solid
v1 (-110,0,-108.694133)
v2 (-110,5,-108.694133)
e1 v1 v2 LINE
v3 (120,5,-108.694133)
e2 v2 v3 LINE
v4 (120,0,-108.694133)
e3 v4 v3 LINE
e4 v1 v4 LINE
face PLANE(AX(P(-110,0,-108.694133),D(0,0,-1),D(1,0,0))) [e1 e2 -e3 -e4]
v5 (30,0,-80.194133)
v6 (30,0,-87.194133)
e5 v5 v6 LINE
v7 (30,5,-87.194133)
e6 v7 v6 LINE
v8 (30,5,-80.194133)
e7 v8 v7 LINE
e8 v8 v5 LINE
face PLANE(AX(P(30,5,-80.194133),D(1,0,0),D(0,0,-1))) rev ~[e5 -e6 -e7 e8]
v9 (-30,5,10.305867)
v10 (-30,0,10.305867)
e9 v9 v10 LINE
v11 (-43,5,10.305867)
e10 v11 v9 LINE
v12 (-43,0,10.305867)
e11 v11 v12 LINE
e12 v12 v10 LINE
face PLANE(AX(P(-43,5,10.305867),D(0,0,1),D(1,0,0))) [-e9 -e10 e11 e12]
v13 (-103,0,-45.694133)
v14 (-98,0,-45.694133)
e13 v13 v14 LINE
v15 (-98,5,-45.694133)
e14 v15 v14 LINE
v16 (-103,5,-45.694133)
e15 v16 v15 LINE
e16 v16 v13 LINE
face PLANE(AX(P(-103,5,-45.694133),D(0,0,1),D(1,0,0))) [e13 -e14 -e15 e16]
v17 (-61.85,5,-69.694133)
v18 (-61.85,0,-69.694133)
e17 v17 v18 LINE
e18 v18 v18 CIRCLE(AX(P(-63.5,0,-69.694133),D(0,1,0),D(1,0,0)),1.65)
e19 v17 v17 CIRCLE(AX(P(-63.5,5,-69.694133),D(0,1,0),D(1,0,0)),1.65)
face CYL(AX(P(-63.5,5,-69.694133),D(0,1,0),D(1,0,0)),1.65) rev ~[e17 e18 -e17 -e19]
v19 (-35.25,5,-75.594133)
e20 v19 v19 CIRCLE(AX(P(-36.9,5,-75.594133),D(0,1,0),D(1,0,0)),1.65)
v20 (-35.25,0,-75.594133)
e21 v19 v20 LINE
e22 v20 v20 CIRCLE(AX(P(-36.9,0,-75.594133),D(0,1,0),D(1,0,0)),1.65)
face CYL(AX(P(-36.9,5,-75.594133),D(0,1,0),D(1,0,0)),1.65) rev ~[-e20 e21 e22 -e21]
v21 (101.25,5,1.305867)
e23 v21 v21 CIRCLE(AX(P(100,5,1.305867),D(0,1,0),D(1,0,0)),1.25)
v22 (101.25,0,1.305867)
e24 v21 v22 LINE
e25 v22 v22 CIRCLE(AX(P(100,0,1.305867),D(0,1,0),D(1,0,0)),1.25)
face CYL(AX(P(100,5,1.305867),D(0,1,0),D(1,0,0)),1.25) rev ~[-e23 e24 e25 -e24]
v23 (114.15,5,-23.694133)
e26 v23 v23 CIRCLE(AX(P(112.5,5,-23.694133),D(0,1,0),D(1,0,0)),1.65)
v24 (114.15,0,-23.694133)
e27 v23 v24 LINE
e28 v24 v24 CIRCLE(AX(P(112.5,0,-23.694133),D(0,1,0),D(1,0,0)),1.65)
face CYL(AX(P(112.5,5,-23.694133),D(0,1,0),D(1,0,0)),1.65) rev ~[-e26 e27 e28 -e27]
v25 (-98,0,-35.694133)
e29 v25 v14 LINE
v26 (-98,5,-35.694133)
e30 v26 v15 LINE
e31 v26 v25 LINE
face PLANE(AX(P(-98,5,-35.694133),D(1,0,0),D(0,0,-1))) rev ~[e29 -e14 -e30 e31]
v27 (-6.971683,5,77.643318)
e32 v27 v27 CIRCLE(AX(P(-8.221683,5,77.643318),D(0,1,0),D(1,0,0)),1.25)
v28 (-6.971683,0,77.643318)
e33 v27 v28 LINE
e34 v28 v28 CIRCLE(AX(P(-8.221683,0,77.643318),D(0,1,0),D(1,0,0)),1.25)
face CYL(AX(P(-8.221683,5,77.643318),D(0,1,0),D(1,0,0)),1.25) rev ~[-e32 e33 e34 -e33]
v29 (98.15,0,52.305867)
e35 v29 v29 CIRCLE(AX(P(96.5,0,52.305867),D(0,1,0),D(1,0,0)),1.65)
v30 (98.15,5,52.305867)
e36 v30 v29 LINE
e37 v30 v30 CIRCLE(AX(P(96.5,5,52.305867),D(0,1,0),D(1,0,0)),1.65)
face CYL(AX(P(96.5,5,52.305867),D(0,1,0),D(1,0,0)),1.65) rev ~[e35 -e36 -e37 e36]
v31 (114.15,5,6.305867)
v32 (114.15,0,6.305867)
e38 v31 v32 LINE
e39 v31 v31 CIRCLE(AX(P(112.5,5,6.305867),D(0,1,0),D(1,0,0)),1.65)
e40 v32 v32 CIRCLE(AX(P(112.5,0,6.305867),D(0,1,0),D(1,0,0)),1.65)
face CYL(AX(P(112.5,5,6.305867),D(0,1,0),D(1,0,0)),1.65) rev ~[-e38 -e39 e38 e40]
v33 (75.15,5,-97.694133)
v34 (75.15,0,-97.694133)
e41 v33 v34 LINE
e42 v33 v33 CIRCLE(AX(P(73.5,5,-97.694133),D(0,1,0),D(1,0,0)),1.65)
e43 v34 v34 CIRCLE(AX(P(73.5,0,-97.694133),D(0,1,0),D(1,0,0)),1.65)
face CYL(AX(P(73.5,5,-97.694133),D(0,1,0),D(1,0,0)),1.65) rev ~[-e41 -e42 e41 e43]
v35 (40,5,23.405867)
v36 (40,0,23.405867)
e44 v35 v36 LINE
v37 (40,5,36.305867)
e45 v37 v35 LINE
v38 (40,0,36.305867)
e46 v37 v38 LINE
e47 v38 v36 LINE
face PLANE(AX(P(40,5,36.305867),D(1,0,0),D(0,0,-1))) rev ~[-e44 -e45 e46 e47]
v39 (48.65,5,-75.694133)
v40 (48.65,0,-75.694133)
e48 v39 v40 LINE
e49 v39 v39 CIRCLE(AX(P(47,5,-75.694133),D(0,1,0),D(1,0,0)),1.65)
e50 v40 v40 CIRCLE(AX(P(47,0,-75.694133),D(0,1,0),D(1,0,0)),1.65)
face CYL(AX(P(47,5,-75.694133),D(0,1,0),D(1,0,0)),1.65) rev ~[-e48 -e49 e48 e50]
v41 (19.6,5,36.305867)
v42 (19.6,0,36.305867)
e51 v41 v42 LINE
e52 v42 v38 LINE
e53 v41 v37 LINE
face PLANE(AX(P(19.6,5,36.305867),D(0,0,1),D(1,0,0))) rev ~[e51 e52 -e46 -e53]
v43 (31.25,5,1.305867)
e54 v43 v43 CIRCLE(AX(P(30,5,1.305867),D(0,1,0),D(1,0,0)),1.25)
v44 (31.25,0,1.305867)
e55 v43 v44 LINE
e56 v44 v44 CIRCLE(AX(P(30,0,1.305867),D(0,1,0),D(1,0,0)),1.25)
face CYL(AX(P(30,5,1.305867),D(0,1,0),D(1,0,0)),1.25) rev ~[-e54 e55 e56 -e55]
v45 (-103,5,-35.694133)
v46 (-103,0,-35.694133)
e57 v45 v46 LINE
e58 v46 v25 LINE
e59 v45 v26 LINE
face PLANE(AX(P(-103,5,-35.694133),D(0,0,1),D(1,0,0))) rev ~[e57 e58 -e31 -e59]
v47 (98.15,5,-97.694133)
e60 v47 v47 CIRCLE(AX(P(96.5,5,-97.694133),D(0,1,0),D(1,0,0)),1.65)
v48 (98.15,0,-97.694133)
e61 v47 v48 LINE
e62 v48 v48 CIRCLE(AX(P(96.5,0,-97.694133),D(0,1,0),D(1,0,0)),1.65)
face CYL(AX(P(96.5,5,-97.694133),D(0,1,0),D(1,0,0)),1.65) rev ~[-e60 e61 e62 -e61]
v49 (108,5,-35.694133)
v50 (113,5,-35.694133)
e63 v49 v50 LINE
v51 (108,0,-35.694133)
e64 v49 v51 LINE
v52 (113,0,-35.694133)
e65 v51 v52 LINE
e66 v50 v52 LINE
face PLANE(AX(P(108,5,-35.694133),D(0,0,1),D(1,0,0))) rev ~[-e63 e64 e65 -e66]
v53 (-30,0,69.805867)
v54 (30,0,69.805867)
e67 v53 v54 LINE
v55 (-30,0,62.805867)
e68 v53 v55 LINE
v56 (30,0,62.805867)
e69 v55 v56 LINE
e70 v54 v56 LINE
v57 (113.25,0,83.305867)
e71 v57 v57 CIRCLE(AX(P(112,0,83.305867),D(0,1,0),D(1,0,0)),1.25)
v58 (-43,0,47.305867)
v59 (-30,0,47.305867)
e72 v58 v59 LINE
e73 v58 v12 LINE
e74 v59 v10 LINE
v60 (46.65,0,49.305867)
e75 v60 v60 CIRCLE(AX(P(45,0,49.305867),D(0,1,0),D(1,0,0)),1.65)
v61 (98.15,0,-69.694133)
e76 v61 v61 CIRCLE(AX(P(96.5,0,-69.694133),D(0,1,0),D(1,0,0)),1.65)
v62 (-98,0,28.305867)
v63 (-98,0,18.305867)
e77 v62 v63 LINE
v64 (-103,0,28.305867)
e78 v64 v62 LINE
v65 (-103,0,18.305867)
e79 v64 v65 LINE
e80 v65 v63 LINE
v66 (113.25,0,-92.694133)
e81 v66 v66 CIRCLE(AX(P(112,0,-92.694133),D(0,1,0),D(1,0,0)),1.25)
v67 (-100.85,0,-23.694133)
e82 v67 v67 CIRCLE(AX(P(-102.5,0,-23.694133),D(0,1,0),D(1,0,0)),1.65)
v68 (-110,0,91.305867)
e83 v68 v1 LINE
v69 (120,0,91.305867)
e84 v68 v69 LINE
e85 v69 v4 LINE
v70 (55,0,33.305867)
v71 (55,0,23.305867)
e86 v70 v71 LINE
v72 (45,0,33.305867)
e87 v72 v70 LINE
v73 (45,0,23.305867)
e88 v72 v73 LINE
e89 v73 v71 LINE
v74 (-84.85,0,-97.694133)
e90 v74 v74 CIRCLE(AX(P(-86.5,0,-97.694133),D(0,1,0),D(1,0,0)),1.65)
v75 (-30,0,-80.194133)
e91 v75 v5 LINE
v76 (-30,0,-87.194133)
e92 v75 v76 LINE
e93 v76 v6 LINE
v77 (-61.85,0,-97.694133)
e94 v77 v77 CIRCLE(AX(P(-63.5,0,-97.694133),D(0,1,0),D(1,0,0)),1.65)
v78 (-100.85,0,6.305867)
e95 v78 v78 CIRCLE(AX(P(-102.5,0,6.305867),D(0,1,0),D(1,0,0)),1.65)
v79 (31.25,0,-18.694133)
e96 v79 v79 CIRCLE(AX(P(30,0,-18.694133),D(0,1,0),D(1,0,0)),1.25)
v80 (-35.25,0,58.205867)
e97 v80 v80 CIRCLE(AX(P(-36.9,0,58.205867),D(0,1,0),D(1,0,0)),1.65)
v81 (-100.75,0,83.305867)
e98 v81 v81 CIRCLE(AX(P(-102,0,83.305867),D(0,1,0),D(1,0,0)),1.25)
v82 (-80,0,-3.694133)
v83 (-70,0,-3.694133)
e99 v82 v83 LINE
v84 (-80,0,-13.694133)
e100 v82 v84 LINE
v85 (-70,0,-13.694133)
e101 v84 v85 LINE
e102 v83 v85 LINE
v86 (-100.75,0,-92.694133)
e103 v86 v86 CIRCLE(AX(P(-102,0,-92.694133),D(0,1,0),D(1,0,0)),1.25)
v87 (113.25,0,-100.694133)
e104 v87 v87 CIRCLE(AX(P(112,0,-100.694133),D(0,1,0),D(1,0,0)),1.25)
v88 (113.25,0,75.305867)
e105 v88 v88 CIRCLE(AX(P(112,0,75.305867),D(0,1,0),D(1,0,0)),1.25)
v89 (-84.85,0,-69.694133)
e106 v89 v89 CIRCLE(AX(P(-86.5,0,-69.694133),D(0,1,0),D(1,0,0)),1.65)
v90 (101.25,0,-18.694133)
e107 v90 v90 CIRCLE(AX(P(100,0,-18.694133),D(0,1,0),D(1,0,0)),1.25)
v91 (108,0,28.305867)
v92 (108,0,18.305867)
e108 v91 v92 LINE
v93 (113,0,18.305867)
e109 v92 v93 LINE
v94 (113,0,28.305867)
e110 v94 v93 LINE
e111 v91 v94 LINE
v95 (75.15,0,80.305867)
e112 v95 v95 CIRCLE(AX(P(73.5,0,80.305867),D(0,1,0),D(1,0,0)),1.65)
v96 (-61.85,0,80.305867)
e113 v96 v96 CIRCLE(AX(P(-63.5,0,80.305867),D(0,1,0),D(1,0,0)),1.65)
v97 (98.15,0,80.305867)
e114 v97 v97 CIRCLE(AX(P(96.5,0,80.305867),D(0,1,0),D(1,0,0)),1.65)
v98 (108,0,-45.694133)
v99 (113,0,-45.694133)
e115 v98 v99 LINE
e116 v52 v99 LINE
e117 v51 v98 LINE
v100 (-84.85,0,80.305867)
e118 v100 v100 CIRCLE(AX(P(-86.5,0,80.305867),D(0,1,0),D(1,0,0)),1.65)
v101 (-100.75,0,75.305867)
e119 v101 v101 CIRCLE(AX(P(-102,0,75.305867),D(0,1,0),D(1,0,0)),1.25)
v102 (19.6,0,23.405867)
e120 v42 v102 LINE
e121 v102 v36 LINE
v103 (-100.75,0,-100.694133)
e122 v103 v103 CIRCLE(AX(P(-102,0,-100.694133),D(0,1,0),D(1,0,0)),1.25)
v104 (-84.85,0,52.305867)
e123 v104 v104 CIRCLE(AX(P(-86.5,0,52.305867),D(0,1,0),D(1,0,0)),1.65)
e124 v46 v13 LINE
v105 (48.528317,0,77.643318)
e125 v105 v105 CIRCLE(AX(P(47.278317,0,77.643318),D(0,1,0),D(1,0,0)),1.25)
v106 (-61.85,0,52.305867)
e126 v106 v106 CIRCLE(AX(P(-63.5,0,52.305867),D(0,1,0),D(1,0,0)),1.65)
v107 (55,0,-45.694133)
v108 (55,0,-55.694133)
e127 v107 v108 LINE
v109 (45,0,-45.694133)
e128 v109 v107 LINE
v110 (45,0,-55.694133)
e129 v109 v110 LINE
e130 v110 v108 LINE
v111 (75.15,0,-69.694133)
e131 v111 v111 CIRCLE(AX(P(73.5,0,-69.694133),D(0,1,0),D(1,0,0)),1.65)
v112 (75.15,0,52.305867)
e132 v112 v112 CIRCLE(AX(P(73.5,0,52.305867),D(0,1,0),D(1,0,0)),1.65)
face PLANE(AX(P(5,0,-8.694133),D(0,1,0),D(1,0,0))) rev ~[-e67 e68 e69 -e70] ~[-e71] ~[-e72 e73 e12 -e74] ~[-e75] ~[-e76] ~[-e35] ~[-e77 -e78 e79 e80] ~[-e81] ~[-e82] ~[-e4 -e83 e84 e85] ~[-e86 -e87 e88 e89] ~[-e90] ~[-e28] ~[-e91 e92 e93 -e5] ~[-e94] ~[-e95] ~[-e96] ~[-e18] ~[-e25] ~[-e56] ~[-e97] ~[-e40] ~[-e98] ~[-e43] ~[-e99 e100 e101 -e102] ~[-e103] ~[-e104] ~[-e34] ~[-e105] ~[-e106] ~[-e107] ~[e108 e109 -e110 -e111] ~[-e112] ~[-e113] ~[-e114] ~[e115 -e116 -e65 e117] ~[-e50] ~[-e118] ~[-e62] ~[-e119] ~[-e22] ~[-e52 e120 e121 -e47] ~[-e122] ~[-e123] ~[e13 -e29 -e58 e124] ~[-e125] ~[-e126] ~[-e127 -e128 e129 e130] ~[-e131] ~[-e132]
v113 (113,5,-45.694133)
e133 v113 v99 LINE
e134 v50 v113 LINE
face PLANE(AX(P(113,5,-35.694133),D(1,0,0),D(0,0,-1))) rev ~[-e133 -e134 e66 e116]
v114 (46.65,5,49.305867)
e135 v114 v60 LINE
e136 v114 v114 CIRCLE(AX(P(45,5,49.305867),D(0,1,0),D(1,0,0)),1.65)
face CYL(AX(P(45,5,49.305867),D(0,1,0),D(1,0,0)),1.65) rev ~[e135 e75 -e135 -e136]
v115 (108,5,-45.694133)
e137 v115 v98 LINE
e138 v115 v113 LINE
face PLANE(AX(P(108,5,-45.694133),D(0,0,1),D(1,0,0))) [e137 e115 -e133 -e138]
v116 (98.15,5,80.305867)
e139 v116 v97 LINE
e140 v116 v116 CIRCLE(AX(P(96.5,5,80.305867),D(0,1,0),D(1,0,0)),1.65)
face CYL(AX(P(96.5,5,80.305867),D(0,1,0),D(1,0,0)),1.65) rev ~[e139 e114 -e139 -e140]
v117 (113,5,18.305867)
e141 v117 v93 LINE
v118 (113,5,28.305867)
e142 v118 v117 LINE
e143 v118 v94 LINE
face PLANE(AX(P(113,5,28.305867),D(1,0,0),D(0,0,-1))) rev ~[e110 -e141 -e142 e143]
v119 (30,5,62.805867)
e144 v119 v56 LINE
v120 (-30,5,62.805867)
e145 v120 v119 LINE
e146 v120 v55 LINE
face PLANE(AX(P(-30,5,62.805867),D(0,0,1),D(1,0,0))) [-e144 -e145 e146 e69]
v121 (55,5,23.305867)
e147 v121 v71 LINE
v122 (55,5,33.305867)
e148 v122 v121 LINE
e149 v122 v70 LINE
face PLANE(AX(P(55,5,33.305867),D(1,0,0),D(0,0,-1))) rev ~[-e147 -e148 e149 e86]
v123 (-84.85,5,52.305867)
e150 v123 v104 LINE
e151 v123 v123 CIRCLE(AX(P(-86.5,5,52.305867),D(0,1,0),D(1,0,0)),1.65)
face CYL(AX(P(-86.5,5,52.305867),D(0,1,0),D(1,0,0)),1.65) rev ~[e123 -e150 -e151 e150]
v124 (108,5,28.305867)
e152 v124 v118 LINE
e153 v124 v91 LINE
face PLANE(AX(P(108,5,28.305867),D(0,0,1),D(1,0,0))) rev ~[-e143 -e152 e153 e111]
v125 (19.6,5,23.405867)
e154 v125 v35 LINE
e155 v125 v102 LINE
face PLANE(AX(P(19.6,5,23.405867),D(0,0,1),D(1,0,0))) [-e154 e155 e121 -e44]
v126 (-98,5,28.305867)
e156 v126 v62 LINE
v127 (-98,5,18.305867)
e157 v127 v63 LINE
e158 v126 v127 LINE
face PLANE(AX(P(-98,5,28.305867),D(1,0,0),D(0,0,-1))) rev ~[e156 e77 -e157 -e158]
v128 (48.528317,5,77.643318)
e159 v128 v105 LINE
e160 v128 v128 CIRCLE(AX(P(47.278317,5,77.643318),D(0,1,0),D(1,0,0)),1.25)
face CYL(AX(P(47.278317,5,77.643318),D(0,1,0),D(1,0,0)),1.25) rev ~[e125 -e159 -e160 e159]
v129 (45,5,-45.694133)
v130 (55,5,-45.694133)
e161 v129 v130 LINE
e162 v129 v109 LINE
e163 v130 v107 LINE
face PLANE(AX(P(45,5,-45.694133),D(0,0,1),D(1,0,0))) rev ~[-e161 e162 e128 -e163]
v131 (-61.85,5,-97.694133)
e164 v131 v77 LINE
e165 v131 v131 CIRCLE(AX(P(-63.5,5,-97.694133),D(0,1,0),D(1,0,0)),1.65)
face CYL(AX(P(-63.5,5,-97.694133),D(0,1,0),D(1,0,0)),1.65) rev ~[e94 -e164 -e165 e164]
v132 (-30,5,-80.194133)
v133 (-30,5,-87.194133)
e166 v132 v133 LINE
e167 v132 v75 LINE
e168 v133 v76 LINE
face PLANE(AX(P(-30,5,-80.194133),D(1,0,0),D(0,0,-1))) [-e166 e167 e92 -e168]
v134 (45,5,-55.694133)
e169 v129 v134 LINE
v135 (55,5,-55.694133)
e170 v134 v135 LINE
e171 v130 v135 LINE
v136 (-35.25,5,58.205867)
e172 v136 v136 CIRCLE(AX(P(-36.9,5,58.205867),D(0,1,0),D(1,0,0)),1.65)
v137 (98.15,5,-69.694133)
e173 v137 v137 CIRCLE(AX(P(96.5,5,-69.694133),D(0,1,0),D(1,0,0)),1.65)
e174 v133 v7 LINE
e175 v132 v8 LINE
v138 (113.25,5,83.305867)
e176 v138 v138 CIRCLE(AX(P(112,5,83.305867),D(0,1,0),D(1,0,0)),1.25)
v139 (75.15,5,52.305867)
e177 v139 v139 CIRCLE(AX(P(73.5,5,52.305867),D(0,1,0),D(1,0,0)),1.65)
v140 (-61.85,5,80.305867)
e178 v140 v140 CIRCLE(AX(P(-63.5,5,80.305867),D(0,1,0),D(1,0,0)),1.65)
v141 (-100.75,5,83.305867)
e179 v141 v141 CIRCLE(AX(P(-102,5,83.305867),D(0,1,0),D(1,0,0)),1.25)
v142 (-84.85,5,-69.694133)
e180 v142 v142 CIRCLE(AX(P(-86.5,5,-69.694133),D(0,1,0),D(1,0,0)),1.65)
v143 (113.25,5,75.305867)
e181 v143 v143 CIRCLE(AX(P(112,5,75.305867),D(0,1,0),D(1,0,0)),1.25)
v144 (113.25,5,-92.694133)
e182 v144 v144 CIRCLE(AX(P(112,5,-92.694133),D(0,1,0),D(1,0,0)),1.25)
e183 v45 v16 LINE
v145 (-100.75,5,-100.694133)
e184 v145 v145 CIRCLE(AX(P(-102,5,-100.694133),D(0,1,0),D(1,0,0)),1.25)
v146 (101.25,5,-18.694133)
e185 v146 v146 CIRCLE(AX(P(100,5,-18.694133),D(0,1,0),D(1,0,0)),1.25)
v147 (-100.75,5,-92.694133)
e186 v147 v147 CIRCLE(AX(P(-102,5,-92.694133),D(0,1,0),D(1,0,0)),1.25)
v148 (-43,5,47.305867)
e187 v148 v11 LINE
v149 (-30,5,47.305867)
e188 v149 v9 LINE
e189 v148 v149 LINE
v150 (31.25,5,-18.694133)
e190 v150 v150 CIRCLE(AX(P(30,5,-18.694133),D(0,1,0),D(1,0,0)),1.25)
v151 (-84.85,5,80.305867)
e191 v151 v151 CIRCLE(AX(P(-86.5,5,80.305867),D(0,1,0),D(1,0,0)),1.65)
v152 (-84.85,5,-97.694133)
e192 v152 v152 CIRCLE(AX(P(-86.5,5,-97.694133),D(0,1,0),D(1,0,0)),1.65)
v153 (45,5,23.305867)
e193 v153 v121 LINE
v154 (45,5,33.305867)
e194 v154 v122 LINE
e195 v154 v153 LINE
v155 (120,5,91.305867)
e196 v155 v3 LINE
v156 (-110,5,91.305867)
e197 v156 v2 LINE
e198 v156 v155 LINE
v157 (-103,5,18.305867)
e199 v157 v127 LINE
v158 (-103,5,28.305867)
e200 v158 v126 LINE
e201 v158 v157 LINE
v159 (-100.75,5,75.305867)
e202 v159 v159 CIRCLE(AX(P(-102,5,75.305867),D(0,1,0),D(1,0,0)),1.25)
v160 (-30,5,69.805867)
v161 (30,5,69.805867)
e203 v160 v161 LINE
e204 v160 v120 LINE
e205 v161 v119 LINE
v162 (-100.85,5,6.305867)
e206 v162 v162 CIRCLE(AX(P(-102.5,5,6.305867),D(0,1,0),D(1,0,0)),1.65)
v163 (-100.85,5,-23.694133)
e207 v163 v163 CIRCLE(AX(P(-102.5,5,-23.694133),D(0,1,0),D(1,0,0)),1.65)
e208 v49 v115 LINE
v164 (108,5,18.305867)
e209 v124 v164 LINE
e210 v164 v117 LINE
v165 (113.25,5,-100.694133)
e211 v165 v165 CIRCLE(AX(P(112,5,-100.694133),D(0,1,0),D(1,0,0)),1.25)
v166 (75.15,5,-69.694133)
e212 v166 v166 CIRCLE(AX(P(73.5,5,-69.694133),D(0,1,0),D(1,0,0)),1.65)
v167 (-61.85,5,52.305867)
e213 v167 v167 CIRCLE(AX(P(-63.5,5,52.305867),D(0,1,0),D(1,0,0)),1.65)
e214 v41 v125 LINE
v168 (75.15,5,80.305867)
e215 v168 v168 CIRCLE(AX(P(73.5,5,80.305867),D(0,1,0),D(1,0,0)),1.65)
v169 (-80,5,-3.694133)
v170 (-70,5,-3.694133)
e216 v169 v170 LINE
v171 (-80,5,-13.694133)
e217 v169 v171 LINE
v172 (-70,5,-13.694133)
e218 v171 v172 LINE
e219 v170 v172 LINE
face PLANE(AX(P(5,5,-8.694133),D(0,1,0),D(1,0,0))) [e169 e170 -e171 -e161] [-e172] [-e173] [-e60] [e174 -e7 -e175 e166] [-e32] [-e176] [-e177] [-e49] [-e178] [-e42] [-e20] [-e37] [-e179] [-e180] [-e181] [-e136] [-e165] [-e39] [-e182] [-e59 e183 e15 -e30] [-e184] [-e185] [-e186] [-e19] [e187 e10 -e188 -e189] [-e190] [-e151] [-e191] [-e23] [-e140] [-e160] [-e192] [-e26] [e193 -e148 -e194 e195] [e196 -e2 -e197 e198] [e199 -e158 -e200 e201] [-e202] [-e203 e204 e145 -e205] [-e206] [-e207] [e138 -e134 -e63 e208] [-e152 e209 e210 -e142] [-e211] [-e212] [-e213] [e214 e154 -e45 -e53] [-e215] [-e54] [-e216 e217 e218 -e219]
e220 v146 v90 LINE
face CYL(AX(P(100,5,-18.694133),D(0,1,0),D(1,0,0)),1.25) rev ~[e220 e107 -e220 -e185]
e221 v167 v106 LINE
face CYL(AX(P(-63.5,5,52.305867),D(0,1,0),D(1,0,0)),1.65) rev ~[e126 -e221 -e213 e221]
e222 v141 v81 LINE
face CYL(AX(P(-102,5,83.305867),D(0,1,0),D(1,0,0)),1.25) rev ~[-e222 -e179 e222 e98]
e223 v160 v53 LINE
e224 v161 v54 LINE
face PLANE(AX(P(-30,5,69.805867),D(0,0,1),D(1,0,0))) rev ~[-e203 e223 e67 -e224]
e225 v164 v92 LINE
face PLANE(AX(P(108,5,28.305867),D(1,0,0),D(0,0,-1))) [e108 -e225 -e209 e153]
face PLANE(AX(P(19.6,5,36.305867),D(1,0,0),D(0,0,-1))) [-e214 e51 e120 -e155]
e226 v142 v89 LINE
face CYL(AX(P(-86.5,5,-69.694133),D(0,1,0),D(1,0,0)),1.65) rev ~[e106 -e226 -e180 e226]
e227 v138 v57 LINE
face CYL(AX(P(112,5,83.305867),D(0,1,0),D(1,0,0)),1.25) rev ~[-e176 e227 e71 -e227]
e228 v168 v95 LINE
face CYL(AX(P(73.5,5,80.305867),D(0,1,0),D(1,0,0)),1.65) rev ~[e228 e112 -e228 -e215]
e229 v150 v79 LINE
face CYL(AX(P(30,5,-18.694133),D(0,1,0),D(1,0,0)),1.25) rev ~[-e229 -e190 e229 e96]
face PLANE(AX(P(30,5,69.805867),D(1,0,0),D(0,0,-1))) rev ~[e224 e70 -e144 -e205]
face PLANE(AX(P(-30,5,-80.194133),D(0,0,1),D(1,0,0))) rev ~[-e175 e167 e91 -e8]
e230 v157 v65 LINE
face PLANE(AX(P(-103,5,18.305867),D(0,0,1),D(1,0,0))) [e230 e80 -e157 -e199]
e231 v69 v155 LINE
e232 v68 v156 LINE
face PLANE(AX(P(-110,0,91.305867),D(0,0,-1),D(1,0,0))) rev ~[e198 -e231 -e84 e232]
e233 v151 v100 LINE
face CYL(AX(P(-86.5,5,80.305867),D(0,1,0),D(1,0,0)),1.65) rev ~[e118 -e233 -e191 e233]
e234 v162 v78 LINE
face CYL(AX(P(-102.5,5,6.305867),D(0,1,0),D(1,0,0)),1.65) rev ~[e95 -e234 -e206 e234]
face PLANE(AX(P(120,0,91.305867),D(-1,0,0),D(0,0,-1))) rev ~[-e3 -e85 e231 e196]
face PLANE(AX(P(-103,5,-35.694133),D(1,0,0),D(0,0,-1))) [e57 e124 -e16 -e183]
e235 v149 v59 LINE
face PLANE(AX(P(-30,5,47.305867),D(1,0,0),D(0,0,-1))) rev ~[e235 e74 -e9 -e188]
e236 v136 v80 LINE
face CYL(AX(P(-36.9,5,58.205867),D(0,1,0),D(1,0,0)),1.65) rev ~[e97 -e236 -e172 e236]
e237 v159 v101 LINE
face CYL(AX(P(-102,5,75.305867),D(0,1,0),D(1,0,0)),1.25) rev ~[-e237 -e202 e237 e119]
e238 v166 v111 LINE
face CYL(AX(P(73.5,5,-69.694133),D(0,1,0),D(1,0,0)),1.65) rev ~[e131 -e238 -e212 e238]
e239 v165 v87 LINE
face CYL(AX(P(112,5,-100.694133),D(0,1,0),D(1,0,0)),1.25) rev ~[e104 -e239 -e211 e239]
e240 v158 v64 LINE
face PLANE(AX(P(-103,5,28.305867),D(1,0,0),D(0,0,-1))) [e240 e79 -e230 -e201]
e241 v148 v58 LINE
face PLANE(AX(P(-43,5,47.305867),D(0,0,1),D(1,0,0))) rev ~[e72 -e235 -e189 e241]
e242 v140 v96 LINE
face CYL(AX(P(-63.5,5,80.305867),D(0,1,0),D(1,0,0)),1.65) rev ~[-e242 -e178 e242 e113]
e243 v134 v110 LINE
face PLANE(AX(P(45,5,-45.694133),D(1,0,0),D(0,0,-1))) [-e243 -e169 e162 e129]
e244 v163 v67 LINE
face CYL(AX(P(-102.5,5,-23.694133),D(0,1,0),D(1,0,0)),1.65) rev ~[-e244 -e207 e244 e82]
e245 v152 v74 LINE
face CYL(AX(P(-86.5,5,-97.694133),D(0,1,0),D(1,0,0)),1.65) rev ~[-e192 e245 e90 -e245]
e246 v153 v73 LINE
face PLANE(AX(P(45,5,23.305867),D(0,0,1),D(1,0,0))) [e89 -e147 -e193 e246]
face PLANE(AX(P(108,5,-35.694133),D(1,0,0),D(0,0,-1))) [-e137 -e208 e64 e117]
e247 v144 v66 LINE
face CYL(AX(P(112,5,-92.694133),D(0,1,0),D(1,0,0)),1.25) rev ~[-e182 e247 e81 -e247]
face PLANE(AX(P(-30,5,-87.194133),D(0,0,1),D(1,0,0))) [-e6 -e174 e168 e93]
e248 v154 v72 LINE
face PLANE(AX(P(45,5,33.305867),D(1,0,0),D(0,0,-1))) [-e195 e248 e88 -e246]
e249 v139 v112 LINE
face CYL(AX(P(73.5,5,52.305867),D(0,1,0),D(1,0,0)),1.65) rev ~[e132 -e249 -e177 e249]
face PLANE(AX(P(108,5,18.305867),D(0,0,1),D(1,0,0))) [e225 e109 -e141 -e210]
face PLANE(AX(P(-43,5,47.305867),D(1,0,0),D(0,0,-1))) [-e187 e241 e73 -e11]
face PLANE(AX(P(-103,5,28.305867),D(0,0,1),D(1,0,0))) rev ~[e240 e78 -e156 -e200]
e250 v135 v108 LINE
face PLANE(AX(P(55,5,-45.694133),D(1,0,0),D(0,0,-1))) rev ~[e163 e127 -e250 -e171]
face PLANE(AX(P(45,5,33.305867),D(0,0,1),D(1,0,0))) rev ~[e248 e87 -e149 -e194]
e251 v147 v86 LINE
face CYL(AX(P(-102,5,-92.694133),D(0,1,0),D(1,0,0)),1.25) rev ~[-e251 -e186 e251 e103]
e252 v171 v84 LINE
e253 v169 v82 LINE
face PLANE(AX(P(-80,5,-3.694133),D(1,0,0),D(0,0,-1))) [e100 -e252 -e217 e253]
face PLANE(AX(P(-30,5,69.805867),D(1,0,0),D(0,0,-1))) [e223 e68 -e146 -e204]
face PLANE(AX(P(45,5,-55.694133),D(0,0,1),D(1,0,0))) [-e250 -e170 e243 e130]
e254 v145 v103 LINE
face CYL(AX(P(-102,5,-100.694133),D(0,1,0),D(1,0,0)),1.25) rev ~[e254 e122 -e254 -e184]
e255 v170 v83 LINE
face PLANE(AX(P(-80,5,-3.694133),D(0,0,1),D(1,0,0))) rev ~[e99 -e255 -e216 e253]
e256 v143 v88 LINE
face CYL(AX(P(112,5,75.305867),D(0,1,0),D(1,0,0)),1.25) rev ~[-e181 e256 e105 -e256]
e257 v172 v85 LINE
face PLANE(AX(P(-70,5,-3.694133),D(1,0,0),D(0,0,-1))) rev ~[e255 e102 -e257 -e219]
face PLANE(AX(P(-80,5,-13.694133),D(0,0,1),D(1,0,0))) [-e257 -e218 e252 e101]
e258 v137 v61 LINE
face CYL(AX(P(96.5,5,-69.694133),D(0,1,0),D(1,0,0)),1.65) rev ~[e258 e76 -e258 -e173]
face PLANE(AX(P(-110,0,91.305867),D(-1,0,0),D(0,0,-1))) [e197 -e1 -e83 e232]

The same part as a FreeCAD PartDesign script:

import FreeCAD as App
import Part
import Sketcher


def add_polygon(sketch, points):
    """Adds a closed chain of lines whose ends are joined by coincident constraints."""
    first, n = sketch.GeometryCount, len(points)
    for a, b in zip(points, points[1:] + points[:1]):
        sketch.addGeometry(Part.LineSegment(App.Vector(*a, 0), App.Vector(*b, 0)), False)
    for i in range(n):
        sketch.addConstraint(Sketcher.Constraint("Coincident", first + i, 2, first + (i + 1) % n, 1))

doc = App.newDocument("Part")
body = doc.addObject("PartDesign::Body", "Body")

# Sketch on XZ plane
sketch1 = body.newObject("Sketcher::SketchObject", "Sketch")
sketch1.AttachmentSupport = (doc.getObject("XZ_Plane"), [""])
sketch1.MapMode = "FlatFace"
add_polygon(sketch1, [(-110, -108.694133), (-110, 91.305867), (120, 91.305867), (120, -108.694133)])  # lines 0-3
sketch1.addConstraint(Sketcher.Constraint("Vertical", 0))
sketch1.addConstraint(Sketcher.Constraint("Horizontal", 1))
sketch1.addConstraint(Sketcher.Constraint("Vertical", 2))
sketch1.addConstraint(Sketcher.Constraint("Horizontal", 3))
sketch1.addConstraint(Sketcher.Constraint("DistanceX", 1, 1, 1, 2, 230.0))
sketch1.addConstraint(Sketcher.Constraint("DistanceY", 0, 1, 0, 2, 200.0))
sketch1.addConstraint(Sketcher.Constraint("DistanceX", 0, 2, -1, 1, 110.0))
sketch1.addConstraint(Sketcher.Constraint("DistanceY", -1, 1, 0, 2, 91.305867))
pad1 = body.newObject("PartDesign::Pad", "Pad")
pad1.Profile = sketch1
pad1.Length = 5
pad1.Reversed = True

# Sketch on XZ plane
sketch2 = body.newObject("Sketcher::SketchObject", "Sketch001")
sketch2.AttachmentSupport = (doc.getObject("XZ_Plane"), [""])
sketch2.MapMode = "FlatFace"
sketch2.AttachmentOffset = App.Placement(App.Vector(0, 0, -5), App.Rotation())
sketch2.addGeometry(Part.Circle(App.Vector(-86.5, -97.694133, 0), App.Vector(0, 0, 1), 1.65), False)  # 0
sketch2.addGeometry(Part.Circle(App.Vector(-63.5, -97.694133, 0), App.Vector(0, 0, 1), 1.65), False)  # 1
sketch2.addGeometry(Part.Circle(App.Vector(-86.5, -69.694133, 0), App.Vector(0, 0, 1), 1.65), False)  # 2
sketch2.addGeometry(Part.Circle(App.Vector(-63.5, -69.694133, 0), App.Vector(0, 0, 1), 1.65), False)  # 3
sketch2.addGeometry(Part.Circle(App.Vector(-86.5, 52.305867, 0), App.Vector(0, 0, 1), 1.65), False)  # 4
sketch2.addGeometry(Part.Circle(App.Vector(-63.5, 52.305867, 0), App.Vector(0, 0, 1), 1.65), False)  # 5
sketch2.addGeometry(Part.Circle(App.Vector(-86.5, 80.305867, 0), App.Vector(0, 0, 1), 1.65), False)  # 6
sketch2.addGeometry(Part.Circle(App.Vector(-63.5, 80.305867, 0), App.Vector(0, 0, 1), 1.65), False)  # 7
sketch2.addGeometry(Part.Circle(App.Vector(73.5, 52.305867, 0), App.Vector(0, 0, 1), 1.65), False)  # 8
sketch2.addGeometry(Part.Circle(App.Vector(96.5, 52.305867, 0), App.Vector(0, 0, 1), 1.65), False)  # 9
sketch2.addGeometry(Part.Circle(App.Vector(73.5, 80.305867, 0), App.Vector(0, 0, 1), 1.65), False)  # 10
sketch2.addGeometry(Part.Circle(App.Vector(96.5, 80.305867, 0), App.Vector(0, 0, 1), 1.65), False)  # 11
sketch2.addGeometry(Part.Circle(App.Vector(73.5, -97.694133, 0), App.Vector(0, 0, 1), 1.65), False)  # 12
sketch2.addGeometry(Part.Circle(App.Vector(96.5, -97.694133, 0), App.Vector(0, 0, 1), 1.65), False)  # 13
sketch2.addGeometry(Part.Circle(App.Vector(73.5, -69.694133, 0), App.Vector(0, 0, 1), 1.65), False)  # 14
sketch2.addGeometry(Part.Circle(App.Vector(96.5, -69.694133, 0), App.Vector(0, 0, 1), 1.65), False)  # 15
sketch2.addGeometry(Part.Circle(App.Vector(-36.9, 58.205867, 0), App.Vector(0, 0, 1), 1.65), False)  # 16
sketch2.addGeometry(Part.Circle(App.Vector(-36.9, -75.594133, 0), App.Vector(0, 0, 1), 1.65), False)  # 17
sketch2.addGeometry(Part.Circle(App.Vector(47, -75.694133, 0), App.Vector(0, 0, 1), 1.65), False)  # 18
sketch2.addGeometry(Part.Circle(App.Vector(45, 49.305867, 0), App.Vector(0, 0, 1), 1.65), False)  # 19
add_polygon(sketch2, [(-30, -87.194133), (-30, -80.194133), (30, -80.194133), (30, -87.194133)])  # lines 20-23
add_polygon(sketch2, [(-30, 62.805867), (-30, 69.805867), (30, 69.805867), (30, 62.805867)])  # lines 24-27
add_polygon(sketch2, [(-43, 10.305867), (-43, 47.305867), (-30, 47.305867), (-30, 10.305867)])  # lines 28-31
sketch2.addConstraint(Sketcher.Constraint("Vertical", 20))
sketch2.addConstraint(Sketcher.Constraint("Horizontal", 21))
sketch2.addConstraint(Sketcher.Constraint("Vertical", 22))
sketch2.addConstraint(Sketcher.Constraint("Horizontal", 23))
sketch2.addConstraint(Sketcher.Constraint("Vertical", 24))
sketch2.addConstraint(Sketcher.Constraint("Horizontal", 25))
sketch2.addConstraint(Sketcher.Constraint("Vertical", 26))
sketch2.addConstraint(Sketcher.Constraint("Horizontal", 27))
sketch2.addConstraint(Sketcher.Constraint("Vertical", 28))
sketch2.addConstraint(Sketcher.Constraint("Horizontal", 29))
sketch2.addConstraint(Sketcher.Constraint("Vertical", 30))
sketch2.addConstraint(Sketcher.Constraint("Horizontal", 31))
sketch2.addConstraint(Sketcher.Constraint("Equal", 0, 1))
sketch2.addConstraint(Sketcher.Constraint("Equal", 1, 2))
sketch2.addConstraint(Sketcher.Constraint("Equal", 2, 3))
sketch2.addConstraint(Sketcher.Constraint("Equal", 3, 4))
sketch2.addConstraint(Sketcher.Constraint("Equal", 4, 5))
sketch2.addConstraint(Sketcher.Constraint("Equal", 5, 6))
sketch2.addConstraint(Sketcher.Constraint("Equal", 6, 7))
sketch2.addConstraint(Sketcher.Constraint("Equal", 7, 8))
sketch2.addConstraint(Sketcher.Constraint("Equal", 8, 9))
sketch2.addConstraint(Sketcher.Constraint("Equal", 9, 10))
sketch2.addConstraint(Sketcher.Constraint("Equal", 10, 11))
sketch2.addConstraint(Sketcher.Constraint("Equal", 11, 12))
sketch2.addConstraint(Sketcher.Constraint("Equal", 12, 13))
sketch2.addConstraint(Sketcher.Constraint("Equal", 13, 14))
sketch2.addConstraint(Sketcher.Constraint("Equal", 14, 15))
sketch2.addConstraint(Sketcher.Constraint("Equal", 15, 16))
sketch2.addConstraint(Sketcher.Constraint("Equal", 16, 17))
sketch2.addConstraint(Sketcher.Constraint("Equal", 17, 18))
sketch2.addConstraint(Sketcher.Constraint("Equal", 18, 19))
sketch2.addConstraint(Sketcher.Constraint("Horizontal", 0, 3, 1, 3))
sketch2.addConstraint(Sketcher.Constraint("Horizontal", 2, 3, 3, 3))
sketch2.addConstraint(Sketcher.Constraint("Horizontal", 4, 3, 5, 3))
sketch2.addConstraint(Sketcher.Constraint("Horizontal", 6, 3, 7, 3))
sketch2.addConstraint(Sketcher.Constraint("Horizontal", 5, 3, 8, 3))
sketch2.addConstraint(Sketcher.Constraint("Horizontal", 8, 3, 9, 3))
sketch2.addConstraint(Sketcher.Constraint("Horizontal", 7, 3, 10, 3))
sketch2.addConstraint(Sketcher.Constraint("Horizontal", 10, 3, 11, 3))
sketch2.addConstraint(Sketcher.Constraint("Horizontal", 1, 3, 12, 3))
sketch2.addConstraint(Sketcher.Constraint("Horizontal", 12, 3, 13, 3))
sketch2.addConstraint(Sketcher.Constraint("Horizontal", 3, 3, 14, 3))
sketch2.addConstraint(Sketcher.Constraint("Horizontal", 14, 3, 15, 3))
sketch2.addConstraint(Sketcher.Constraint("Vertical", 0, 3, 2, 3))
sketch2.addConstraint(Sketcher.Constraint("Vertical", 1, 3, 3, 3))
sketch2.addConstraint(Sketcher.Constraint("Vertical", 2, 3, 4, 3))
sketch2.addConstraint(Sketcher.Constraint("Vertical", 3, 3, 5, 3))
sketch2.addConstraint(Sketcher.Constraint("Vertical", 4, 3, 6, 3))
sketch2.addConstraint(Sketcher.Constraint("Vertical", 5, 3, 7, 3))
sketch2.addConstraint(Sketcher.Constraint("Vertical", 8, 3, 10, 3))
sketch2.addConstraint(Sketcher.Constraint("Vertical", 9, 3, 11, 3))
sketch2.addConstraint(Sketcher.Constraint("Vertical", 10, 3, 12, 3))
sketch2.addConstraint(Sketcher.Constraint("Vertical", 11, 3, 13, 3))
sketch2.addConstraint(Sketcher.Constraint("Vertical", 12, 3, 14, 3))
sketch2.addConstraint(Sketcher.Constraint("Vertical", 13, 3, 15, 3))
sketch2.addConstraint(Sketcher.Constraint("Vertical", 16, 3, 17, 3))
sketch2.addConstraint(Sketcher.Constraint("Vertical", 23, 2, 24, 2))
sketch2.addConstraint(Sketcher.Constraint("Vertical", 22, 2, 25, 2))
sketch2.addConstraint(Sketcher.Constraint("Vertical", 27, 2, 29, 2))
sketch2.addConstraint(Sketcher.Constraint("Equal", 22, 24))
sketch2.addConstraint(Sketcher.Constraint("Diameter", 0, 3.3))
sketch2.addConstraint(Sketcher.Constraint("DistanceX", 21, 1, 21, 2, 60.0))
sketch2.addConstraint(Sketcher.Constraint("DistanceX", 29, 1, 29, 2, 13.0))
sketch2.addConstraint(Sketcher.Constraint("DistanceY", 20, 1, 20, 2, 7.0))
sketch2.addConstraint(Sketcher.Constraint("DistanceY", 28, 1, 28, 2, 37.0))
sketch2.addConstraint(Sketcher.Constraint("DistanceX", -1, 1, 18, 3, 47.0))
sketch2.addConstraint(Sketcher.Constraint("DistanceX", -1, 1, 19, 3, 45.0))
sketch2.addConstraint(Sketcher.Constraint("DistanceX", 20, 2, -1, 1, 30.0))
sketch2.addConstraint(Sketcher.Constraint("DistanceX", 0, 3, 1, 3, 23.0))
sketch2.addConstraint(Sketcher.Constraint("DistanceY", 0, 3, 2, 3, 28.0))
sketch2.addConstraint(Sketcher.Constraint("DistanceY", 2, 3, 4, 3, 122.0))
sketch2.addConstraint(Sketcher.Constraint("DistanceY", 4, 3, 6, 3, 28.0))
sketch2.addConstraint(Sketcher.Constraint("DistanceX", 5, 3, 8, 3, 137.0))
sketch2.addConstraint(Sketcher.Constraint("DistanceX", 8, 3, 9, 3, 23.0))
sketch2.addConstraint(Sketcher.Constraint("DistanceY", 18, 3, 14, 3, 6.0))
sketch2.addConstraint(Sketcher.Constraint("DistanceY", 19, 3, 8, 3, 3.0))
sketch2.addConstraint(Sketcher.Constraint("DistanceY", 28, 2, 5, 3, 5.0))
sketch2.addConstraint(Sketcher.Constraint("DistanceX", 0, 3, -1, 1, 86.5))
sketch2.addConstraint(Sketcher.Constraint("DistanceX", 16, 3, -1, 1, 36.9))
sketch2.addConstraint(Sketcher.Constraint("DistanceY", 5, 3, 16, 3, 5.9))
sketch2.addConstraint(Sketcher.Constraint("DistanceY", 17, 3, 3, 3, 5.9))
sketch2.addConstraint(Sketcher.Constraint("DistanceY", 20, 2, 17, 3, 4.6))
sketch2.addConstraint(Sketcher.Constraint("DistanceY", 16, 3, 24, 2, 11.6))
sketch2.addConstraint(Sketcher.Constraint("DistanceY", 0, 3, -1, 1, 97.694133))
pocket1 = body.newObject("PartDesign::Pocket", "Pocket")
pocket1.Profile = sketch2
pocket1.Length = 5
pocket1.Reversed = True

# Sketch on XZ plane
sketch3 = body.newObject("Sketcher::SketchObject", "Sketch002")
sketch3.AttachmentSupport = (doc.getObject("XZ_Plane"), [""])
sketch3.MapMode = "FlatFace"
sketch3.AttachmentOffset = App.Placement(App.Vector(0, 0, -5), App.Rotation())
sketch3.addGeometry(Part.Circle(App.Vector(-102, -100.694133, 0), App.Vector(0, 0, 1), 1.25), False)
sketch3.addGeometry(Part.Circle(App.Vector(-102, 83.305867, 0), App.Vector(0, 0, 1), 1.25), False)
sketch3.addGeometry(Part.Circle(App.Vector(112, 83.305867, 0), App.Vector(0, 0, 1), 1.25), False)
sketch3.addGeometry(Part.Circle(App.Vector(112, -100.694133, 0), App.Vector(0, 0, 1), 1.25), False)
sketch3.addGeometry(Part.Circle(App.Vector(-102, 75.305867, 0), App.Vector(0, 0, 1), 1.25), False)
sketch3.addGeometry(Part.Circle(App.Vector(-102, -92.694133, 0), App.Vector(0, 0, 1), 1.25), False)
sketch3.addGeometry(Part.Circle(App.Vector(112, -92.694133, 0), App.Vector(0, 0, 1), 1.25), False)
sketch3.addGeometry(Part.Circle(App.Vector(112, 75.305867, 0), App.Vector(0, 0, 1), 1.25), False)
sketch3.addConstraint(Sketcher.Constraint("Equal", 0, 1))
sketch3.addConstraint(Sketcher.Constraint("Equal", 1, 2))
sketch3.addConstraint(Sketcher.Constraint("Equal", 2, 3))
sketch3.addConstraint(Sketcher.Constraint("Equal", 3, 4))
sketch3.addConstraint(Sketcher.Constraint("Equal", 4, 5))
sketch3.addConstraint(Sketcher.Constraint("Equal", 5, 6))
sketch3.addConstraint(Sketcher.Constraint("Equal", 6, 7))
sketch3.addConstraint(Sketcher.Constraint("Horizontal", 1, 3, 2, 3))
sketch3.addConstraint(Sketcher.Constraint("Horizontal", 0, 3, 3, 3))
sketch3.addConstraint(Sketcher.Constraint("Horizontal", 5, 3, 6, 3))
sketch3.addConstraint(Sketcher.Constraint("Horizontal", 4, 3, 7, 3))
sketch3.addConstraint(Sketcher.Constraint("Vertical", 0, 3, 1, 3))
sketch3.addConstraint(Sketcher.Constraint("Vertical", 2, 3, 3, 3))
sketch3.addConstraint(Sketcher.Constraint("Vertical", 1, 3, 4, 3))
sketch3.addConstraint(Sketcher.Constraint("Vertical", 4, 3, 5, 3))
sketch3.addConstraint(Sketcher.Constraint("Vertical", 3, 3, 6, 3))
sketch3.addConstraint(Sketcher.Constraint("Vertical", 6, 3, 7, 3))
sketch3.addConstraint(Sketcher.Constraint("Diameter", 0, 2.5))
sketch3.addConstraint(Sketcher.Constraint("DistanceX", 0, 3, -1, 1, 102.0))
sketch3.addConstraint(Sketcher.Constraint("DistanceX", -1, 1, 2, 3, 112.0))
sketch3.addConstraint(Sketcher.Constraint("DistanceY", 0, 3, 1, 3, 184.0))
sketch3.addConstraint(Sketcher.Constraint("DistanceY", 4, 3, 1, 3, 8.0))
sketch3.addConstraint(Sketcher.Constraint("DistanceY", 0, 3, 5, 3, 8.0))
sketch3.addConstraint(Sketcher.Constraint("DistanceY", 0, 3, -1, 1, 100.694133))
pocket2 = body.newObject("PartDesign::Pocket", "Pocket001")
pocket2.Profile = sketch3
pocket2.Length = 10
pocket2.Reversed = True

# Sketch on XZ plane
sketch4 = body.newObject("Sketcher::SketchObject", "Sketch003")
sketch4.AttachmentSupport = (doc.getObject("XZ_Plane"), [""])
sketch4.MapMode = "FlatFace"
sketch4.AttachmentOffset = App.Placement(App.Vector(0, 0, -5), App.Rotation())
sketch4.addGeometry(Part.Circle(App.Vector(-8.221683, 77.643318, 0), App.Vector(0, 0, 1), 1.25), False)
sketch4.addGeometry(Part.Circle(App.Vector(47.278317, 77.643318, 0), App.Vector(0, 0, 1), 1.25), False)
sketch4.addConstraint(Sketcher.Constraint("Equal", 0, 1))
sketch4.addConstraint(Sketcher.Constraint("Horizontal", 0, 3, 1, 3))
sketch4.addConstraint(Sketcher.Constraint("Diameter", 0, 2.5))
sketch4.addConstraint(Sketcher.Constraint("DistanceX", 0, 3, 1, 3, 55.5))
sketch4.addConstraint(Sketcher.Constraint("DistanceY", -1, 1, 0, 3, 77.643318))
sketch4.addConstraint(Sketcher.Constraint("DistanceX", 0, 3, -1, 1, 8.221683))
pocket3 = body.newObject("PartDesign::Pocket", "Pocket002")
pocket3.Profile = sketch4
pocket3.Length = 5
pocket3.Reversed = True

# Sketch on XZ plane
sketch5 = body.newObject("Sketcher::SketchObject", "Sketch004")
sketch5.AttachmentSupport = (doc.getObject("XZ_Plane"), [""])
sketch5.MapMode = "FlatFace"
sketch5.AttachmentOffset = App.Placement(App.Vector(0, 0, -5), App.Rotation())
sketch5.addGeometry(Part.Circle(App.Vector(112.5, -23.694133, 0), App.Vector(0, 0, 1), 1.65), False)  # 0
sketch5.addGeometry(Part.Circle(App.Vector(112.5, 6.305867, 0), App.Vector(0, 0, 1), 1.65), False)  # 1
sketch5.addGeometry(Part.Circle(App.Vector(-102.5, -23.694133, 0), App.Vector(0, 0, 1), 1.65), False)  # 2
sketch5.addGeometry(Part.Circle(App.Vector(-102.5, 6.305867, 0), App.Vector(0, 0, 1), 1.65), False)  # 3
add_polygon(sketch5, [(108, 18.305867), (108, 28.305867), (113, 28.305867), (113, 18.305867)])  # lines 4-7
add_polygon(sketch5, [(108, -45.694133), (108, -35.694133), (113, -35.694133), (113, -45.694133)])  # lines 8-11
add_polygon(sketch5, [(-103, -45.694133), (-103, -35.694133), (-98, -35.694133), (-98, -45.694133)])  # lines 12-15
add_polygon(sketch5, [(-103, 18.305867), (-103, 28.305867), (-98, 28.305867), (-98, 18.305867)])  # lines 16-19
sketch5.addConstraint(Sketcher.Constraint("Vertical", 4))
sketch5.addConstraint(Sketcher.Constraint("Horizontal", 5))
sketch5.addConstraint(Sketcher.Constraint("Vertical", 6))
sketch5.addConstraint(Sketcher.Constraint("Horizontal", 7))
sketch5.addConstraint(Sketcher.Constraint("Vertical", 8))
sketch5.addConstraint(Sketcher.Constraint("Horizontal", 9))
sketch5.addConstraint(Sketcher.Constraint("Vertical", 10))
sketch5.addConstraint(Sketcher.Constraint("Horizontal", 11))
sketch5.addConstraint(Sketcher.Constraint("Vertical", 12))
sketch5.addConstraint(Sketcher.Constraint("Horizontal", 13))
sketch5.addConstraint(Sketcher.Constraint("Vertical", 14))
sketch5.addConstraint(Sketcher.Constraint("Horizontal", 15))
sketch5.addConstraint(Sketcher.Constraint("Vertical", 16))
sketch5.addConstraint(Sketcher.Constraint("Horizontal", 17))
sketch5.addConstraint(Sketcher.Constraint("Vertical", 18))
sketch5.addConstraint(Sketcher.Constraint("Horizontal", 19))
sketch5.addConstraint(Sketcher.Constraint("Equal", 0, 1))
sketch5.addConstraint(Sketcher.Constraint("Equal", 1, 2))
sketch5.addConstraint(Sketcher.Constraint("Equal", 2, 3))
sketch5.addConstraint(Sketcher.Constraint("Horizontal", 0, 3, 2, 3))
sketch5.addConstraint(Sketcher.Constraint("Horizontal", 1, 3, 3, 3))
sketch5.addConstraint(Sketcher.Constraint("Horizontal", 9, 2, 12, 2))
sketch5.addConstraint(Sketcher.Constraint("Horizontal", 11, 2, 14, 2))
sketch5.addConstraint(Sketcher.Constraint("Horizontal", 5, 2, 16, 2))
sketch5.addConstraint(Sketcher.Constraint("Horizontal", 7, 2, 18, 2))
sketch5.addConstraint(Sketcher.Constraint("Vertical", 0, 3, 1, 3))
sketch5.addConstraint(Sketcher.Constraint("Vertical", 2, 3, 3, 3))
sketch5.addConstraint(Sketcher.Constraint("Vertical", 7, 2, 8, 2))
sketch5.addConstraint(Sketcher.Constraint("Vertical", 6, 2, 9, 2))
sketch5.addConstraint(Sketcher.Constraint("Vertical", 15, 2, 16, 2))
sketch5.addConstraint(Sketcher.Constraint("Vertical", 14, 2, 17, 2))
sketch5.addConstraint(Sketcher.Constraint("Equal", 11, 13))
sketch5.addConstraint(Sketcher.Constraint("Equal", 6, 8))
sketch5.addConstraint(Sketcher.Constraint("Diameter", 0, 3.3))
sketch5.addConstraint(Sketcher.Constraint("DistanceX", 5, 1, 5, 2, 5.0))
sketch5.addConstraint(Sketcher.Constraint("DistanceY", 4, 1, 4, 2, 10.0))
sketch5.addConstraint(Sketcher.Constraint("DistanceX", -1, 1, 4, 2, 108.0))
sketch5.addConstraint(Sketcher.Constraint("DistanceX", 12, 2, -1, 1, 103.0))
sketch5.addConstraint(Sketcher.Constraint("DistanceY", 0, 3, 1, 3, 30.0))
sketch5.addConstraint(Sketcher.Constraint("DistanceX", 2, 3, 0, 3, 215.0))
sketch5.addConstraint(Sketcher.Constraint("DistanceY", 1, 3, 4, 2, 22.0))
sketch5.addConstraint(Sketcher.Constraint("DistanceY", 8, 2, 0, 3, 12.0))
sketch5.addConstraint(Sketcher.Constraint("DistanceX", -1, 1, 0, 3, 112.5))
sketch5.addConstraint(Sketcher.Constraint("DistanceY", 0, 3, -1, 1, 23.694133))
pocket4 = body.newObject("PartDesign::Pocket", "Pocket003")
pocket4.Profile = sketch5
pocket4.Length = 10
pocket4.Reversed = True

# Sketch on XZ plane
sketch6 = body.newObject("Sketcher::SketchObject", "Sketch005")
sketch6.AttachmentSupport = (doc.getObject("XZ_Plane"), [""])
sketch6.MapMode = "FlatFace"
sketch6.AttachmentOffset = App.Placement(App.Vector(0, 0, -5), App.Rotation())
sketch6.addGeometry(Part.Circle(App.Vector(100, -18.694133, 0), App.Vector(0, 0, 1), 1.25), False)
sketch6.addGeometry(Part.Circle(App.Vector(100, 1.305867, 0), App.Vector(0, 0, 1), 1.25), False)
sketch6.addGeometry(Part.Circle(App.Vector(30, -18.694133, 0), App.Vector(0, 0, 1), 1.25), False)
sketch6.addGeometry(Part.Circle(App.Vector(30, 1.305867, 0), App.Vector(0, 0, 1), 1.25), False)
sketch6.addConstraint(Sketcher.Constraint("Equal", 0, 1))
sketch6.addConstraint(Sketcher.Constraint("Equal", 1, 2))
sketch6.addConstraint(Sketcher.Constraint("Equal", 2, 3))
sketch6.addConstraint(Sketcher.Constraint("Horizontal", 0, 3, 2, 3))
sketch6.addConstraint(Sketcher.Constraint("Horizontal", 1, 3, 3, 3))
sketch6.addConstraint(Sketcher.Constraint("Vertical", 0, 3, 1, 3))
sketch6.addConstraint(Sketcher.Constraint("Vertical", 2, 3, 3, 3))
sketch6.addConstraint(Sketcher.Constraint("Diameter", 0, 2.5))
sketch6.addConstraint(Sketcher.Constraint("DistanceX", -1, 1, 0, 3, 100.0))
sketch6.addConstraint(Sketcher.Constraint("DistanceX", -1, 1, 2, 3, 30.0))
sketch6.addConstraint(Sketcher.Constraint("DistanceY", 0, 3, 1, 3, 20.0))
sketch6.addConstraint(Sketcher.Constraint("DistanceY", 0, 3, -1, 1, 18.694133))
pocket5 = body.newObject("PartDesign::Pocket", "Pocket004")
pocket5.Profile = sketch6
pocket5.Length = 10
pocket5.Reversed = True

# Sketch on XZ plane
sketch7 = body.newObject("Sketcher::SketchObject", "Sketch006")
sketch7.AttachmentSupport = (doc.getObject("XZ_Plane"), [""])
sketch7.MapMode = "FlatFace"
sketch7.AttachmentOffset = App.Placement(App.Vector(0, 0, -5), App.Rotation())
add_polygon(sketch7, [(19.6, 23.405867), (19.6, 36.305867), (40, 36.305867), (40, 23.405867)])  # lines 0-3
sketch7.addConstraint(Sketcher.Constraint("Vertical", 0))
sketch7.addConstraint(Sketcher.Constraint("Horizontal", 1))
sketch7.addConstraint(Sketcher.Constraint("Vertical", 2))
sketch7.addConstraint(Sketcher.Constraint("Horizontal", 3))
sketch7.addConstraint(Sketcher.Constraint("DistanceX", 1, 1, 1, 2, 20.4))
sketch7.addConstraint(Sketcher.Constraint("DistanceY", 0, 1, 0, 2, 12.9))
sketch7.addConstraint(Sketcher.Constraint("DistanceX", -1, 1, 1, 2, 40.0))
sketch7.addConstraint(Sketcher.Constraint("DistanceY", -1, 1, 0, 2, 36.305867))
pocket6 = body.newObject("PartDesign::Pocket", "Pocket005")
pocket6.Profile = sketch7
pocket6.Length = 10
pocket6.Reversed = True

# Sketch on XZ plane
sketch8 = body.newObject("Sketcher::SketchObject", "Sketch007")
sketch8.AttachmentSupport = (doc.getObject("XZ_Plane"), [""])
sketch8.MapMode = "FlatFace"
sketch8.AttachmentOffset = App.Placement(App.Vector(0, 0, -5), App.Rotation())
add_polygon(sketch8, [(-80, -13.694133), (-80, -3.694133), (-70, -3.694133), (-70, -13.694133)])  # lines 0-3
sketch8.addConstraint(Sketcher.Constraint("Vertical", 0))
sketch8.addConstraint(Sketcher.Constraint("Horizontal", 1))
sketch8.addConstraint(Sketcher.Constraint("Vertical", 2))
sketch8.addConstraint(Sketcher.Constraint("Horizontal", 3))
sketch8.addConstraint(Sketcher.Constraint("Equal", 3, 0))
sketch8.addConstraint(Sketcher.Constraint("DistanceX", 1, 1, 1, 2, 10.0))
sketch8.addConstraint(Sketcher.Constraint("DistanceX", 0, 2, -1, 1, 80.0))
sketch8.addConstraint(Sketcher.Constraint("DistanceY", 0, 2, -1, 1, 3.694133))
pocket7 = body.newObject("PartDesign::Pocket", "Pocket006")
pocket7.Profile = sketch8
pocket7.Length = 10
pocket7.Reversed = True

# Sketch on XZ plane
sketch9 = body.newObject("Sketcher::SketchObject", "Sketch008")
sketch9.AttachmentSupport = (doc.getObject("XZ_Plane"), [""])
sketch9.MapMode = "FlatFace"
sketch9.AttachmentOffset = App.Placement(App.Vector(0, 0, -5), App.Rotation())
add_polygon(sketch9, [(45, -55.694133), (45, -45.694133), (55, -45.694133), (55, -55.694133)])  # lines 0-3
add_polygon(sketch9, [(45, 23.305867), (45, 33.305867), (55, 33.305867), (55, 23.305867)])  # lines 4-7
sketch9.addConstraint(Sketcher.Constraint("Vertical", 0))
sketch9.addConstraint(Sketcher.Constraint("Horizontal", 1))
sketch9.addConstraint(Sketcher.Constraint("Vertical", 2))
sketch9.addConstraint(Sketcher.Constraint("Horizontal", 3))
sketch9.addConstraint(Sketcher.Constraint("Vertical", 4))
sketch9.addConstraint(Sketcher.Constraint("Horizontal", 5))
sketch9.addConstraint(Sketcher.Constraint("Vertical", 6))
sketch9.addConstraint(Sketcher.Constraint("Horizontal", 7))
sketch9.addConstraint(Sketcher.Constraint("Vertical", 3, 2, 4, 2))
sketch9.addConstraint(Sketcher.Constraint("Vertical", 2, 2, 5, 2))
sketch9.addConstraint(Sketcher.Constraint("Equal", 7, 0))
sketch9.addConstraint(Sketcher.Constraint("Equal", 2, 4))
sketch9.addConstraint(Sketcher.Constraint("DistanceX", 1, 1, 1, 2, 10.0))
sketch9.addConstraint(Sketcher.Constraint("DistanceX", -1, 1, 0, 2, 45.0))
sketch9.addConstraint(Sketcher.Constraint("DistanceY", 0, 2, 4, 2, 79.0))
sketch9.addConstraint(Sketcher.Constraint("DistanceY", 0, 2, -1, 1, 45.694133))
pocket8 = body.newObject("PartDesign::Pocket", "Pocket007")
pocket8.Profile = sketch9
pocket8.Length = 10
pocket8.Reversed = True

doc.recompute()
